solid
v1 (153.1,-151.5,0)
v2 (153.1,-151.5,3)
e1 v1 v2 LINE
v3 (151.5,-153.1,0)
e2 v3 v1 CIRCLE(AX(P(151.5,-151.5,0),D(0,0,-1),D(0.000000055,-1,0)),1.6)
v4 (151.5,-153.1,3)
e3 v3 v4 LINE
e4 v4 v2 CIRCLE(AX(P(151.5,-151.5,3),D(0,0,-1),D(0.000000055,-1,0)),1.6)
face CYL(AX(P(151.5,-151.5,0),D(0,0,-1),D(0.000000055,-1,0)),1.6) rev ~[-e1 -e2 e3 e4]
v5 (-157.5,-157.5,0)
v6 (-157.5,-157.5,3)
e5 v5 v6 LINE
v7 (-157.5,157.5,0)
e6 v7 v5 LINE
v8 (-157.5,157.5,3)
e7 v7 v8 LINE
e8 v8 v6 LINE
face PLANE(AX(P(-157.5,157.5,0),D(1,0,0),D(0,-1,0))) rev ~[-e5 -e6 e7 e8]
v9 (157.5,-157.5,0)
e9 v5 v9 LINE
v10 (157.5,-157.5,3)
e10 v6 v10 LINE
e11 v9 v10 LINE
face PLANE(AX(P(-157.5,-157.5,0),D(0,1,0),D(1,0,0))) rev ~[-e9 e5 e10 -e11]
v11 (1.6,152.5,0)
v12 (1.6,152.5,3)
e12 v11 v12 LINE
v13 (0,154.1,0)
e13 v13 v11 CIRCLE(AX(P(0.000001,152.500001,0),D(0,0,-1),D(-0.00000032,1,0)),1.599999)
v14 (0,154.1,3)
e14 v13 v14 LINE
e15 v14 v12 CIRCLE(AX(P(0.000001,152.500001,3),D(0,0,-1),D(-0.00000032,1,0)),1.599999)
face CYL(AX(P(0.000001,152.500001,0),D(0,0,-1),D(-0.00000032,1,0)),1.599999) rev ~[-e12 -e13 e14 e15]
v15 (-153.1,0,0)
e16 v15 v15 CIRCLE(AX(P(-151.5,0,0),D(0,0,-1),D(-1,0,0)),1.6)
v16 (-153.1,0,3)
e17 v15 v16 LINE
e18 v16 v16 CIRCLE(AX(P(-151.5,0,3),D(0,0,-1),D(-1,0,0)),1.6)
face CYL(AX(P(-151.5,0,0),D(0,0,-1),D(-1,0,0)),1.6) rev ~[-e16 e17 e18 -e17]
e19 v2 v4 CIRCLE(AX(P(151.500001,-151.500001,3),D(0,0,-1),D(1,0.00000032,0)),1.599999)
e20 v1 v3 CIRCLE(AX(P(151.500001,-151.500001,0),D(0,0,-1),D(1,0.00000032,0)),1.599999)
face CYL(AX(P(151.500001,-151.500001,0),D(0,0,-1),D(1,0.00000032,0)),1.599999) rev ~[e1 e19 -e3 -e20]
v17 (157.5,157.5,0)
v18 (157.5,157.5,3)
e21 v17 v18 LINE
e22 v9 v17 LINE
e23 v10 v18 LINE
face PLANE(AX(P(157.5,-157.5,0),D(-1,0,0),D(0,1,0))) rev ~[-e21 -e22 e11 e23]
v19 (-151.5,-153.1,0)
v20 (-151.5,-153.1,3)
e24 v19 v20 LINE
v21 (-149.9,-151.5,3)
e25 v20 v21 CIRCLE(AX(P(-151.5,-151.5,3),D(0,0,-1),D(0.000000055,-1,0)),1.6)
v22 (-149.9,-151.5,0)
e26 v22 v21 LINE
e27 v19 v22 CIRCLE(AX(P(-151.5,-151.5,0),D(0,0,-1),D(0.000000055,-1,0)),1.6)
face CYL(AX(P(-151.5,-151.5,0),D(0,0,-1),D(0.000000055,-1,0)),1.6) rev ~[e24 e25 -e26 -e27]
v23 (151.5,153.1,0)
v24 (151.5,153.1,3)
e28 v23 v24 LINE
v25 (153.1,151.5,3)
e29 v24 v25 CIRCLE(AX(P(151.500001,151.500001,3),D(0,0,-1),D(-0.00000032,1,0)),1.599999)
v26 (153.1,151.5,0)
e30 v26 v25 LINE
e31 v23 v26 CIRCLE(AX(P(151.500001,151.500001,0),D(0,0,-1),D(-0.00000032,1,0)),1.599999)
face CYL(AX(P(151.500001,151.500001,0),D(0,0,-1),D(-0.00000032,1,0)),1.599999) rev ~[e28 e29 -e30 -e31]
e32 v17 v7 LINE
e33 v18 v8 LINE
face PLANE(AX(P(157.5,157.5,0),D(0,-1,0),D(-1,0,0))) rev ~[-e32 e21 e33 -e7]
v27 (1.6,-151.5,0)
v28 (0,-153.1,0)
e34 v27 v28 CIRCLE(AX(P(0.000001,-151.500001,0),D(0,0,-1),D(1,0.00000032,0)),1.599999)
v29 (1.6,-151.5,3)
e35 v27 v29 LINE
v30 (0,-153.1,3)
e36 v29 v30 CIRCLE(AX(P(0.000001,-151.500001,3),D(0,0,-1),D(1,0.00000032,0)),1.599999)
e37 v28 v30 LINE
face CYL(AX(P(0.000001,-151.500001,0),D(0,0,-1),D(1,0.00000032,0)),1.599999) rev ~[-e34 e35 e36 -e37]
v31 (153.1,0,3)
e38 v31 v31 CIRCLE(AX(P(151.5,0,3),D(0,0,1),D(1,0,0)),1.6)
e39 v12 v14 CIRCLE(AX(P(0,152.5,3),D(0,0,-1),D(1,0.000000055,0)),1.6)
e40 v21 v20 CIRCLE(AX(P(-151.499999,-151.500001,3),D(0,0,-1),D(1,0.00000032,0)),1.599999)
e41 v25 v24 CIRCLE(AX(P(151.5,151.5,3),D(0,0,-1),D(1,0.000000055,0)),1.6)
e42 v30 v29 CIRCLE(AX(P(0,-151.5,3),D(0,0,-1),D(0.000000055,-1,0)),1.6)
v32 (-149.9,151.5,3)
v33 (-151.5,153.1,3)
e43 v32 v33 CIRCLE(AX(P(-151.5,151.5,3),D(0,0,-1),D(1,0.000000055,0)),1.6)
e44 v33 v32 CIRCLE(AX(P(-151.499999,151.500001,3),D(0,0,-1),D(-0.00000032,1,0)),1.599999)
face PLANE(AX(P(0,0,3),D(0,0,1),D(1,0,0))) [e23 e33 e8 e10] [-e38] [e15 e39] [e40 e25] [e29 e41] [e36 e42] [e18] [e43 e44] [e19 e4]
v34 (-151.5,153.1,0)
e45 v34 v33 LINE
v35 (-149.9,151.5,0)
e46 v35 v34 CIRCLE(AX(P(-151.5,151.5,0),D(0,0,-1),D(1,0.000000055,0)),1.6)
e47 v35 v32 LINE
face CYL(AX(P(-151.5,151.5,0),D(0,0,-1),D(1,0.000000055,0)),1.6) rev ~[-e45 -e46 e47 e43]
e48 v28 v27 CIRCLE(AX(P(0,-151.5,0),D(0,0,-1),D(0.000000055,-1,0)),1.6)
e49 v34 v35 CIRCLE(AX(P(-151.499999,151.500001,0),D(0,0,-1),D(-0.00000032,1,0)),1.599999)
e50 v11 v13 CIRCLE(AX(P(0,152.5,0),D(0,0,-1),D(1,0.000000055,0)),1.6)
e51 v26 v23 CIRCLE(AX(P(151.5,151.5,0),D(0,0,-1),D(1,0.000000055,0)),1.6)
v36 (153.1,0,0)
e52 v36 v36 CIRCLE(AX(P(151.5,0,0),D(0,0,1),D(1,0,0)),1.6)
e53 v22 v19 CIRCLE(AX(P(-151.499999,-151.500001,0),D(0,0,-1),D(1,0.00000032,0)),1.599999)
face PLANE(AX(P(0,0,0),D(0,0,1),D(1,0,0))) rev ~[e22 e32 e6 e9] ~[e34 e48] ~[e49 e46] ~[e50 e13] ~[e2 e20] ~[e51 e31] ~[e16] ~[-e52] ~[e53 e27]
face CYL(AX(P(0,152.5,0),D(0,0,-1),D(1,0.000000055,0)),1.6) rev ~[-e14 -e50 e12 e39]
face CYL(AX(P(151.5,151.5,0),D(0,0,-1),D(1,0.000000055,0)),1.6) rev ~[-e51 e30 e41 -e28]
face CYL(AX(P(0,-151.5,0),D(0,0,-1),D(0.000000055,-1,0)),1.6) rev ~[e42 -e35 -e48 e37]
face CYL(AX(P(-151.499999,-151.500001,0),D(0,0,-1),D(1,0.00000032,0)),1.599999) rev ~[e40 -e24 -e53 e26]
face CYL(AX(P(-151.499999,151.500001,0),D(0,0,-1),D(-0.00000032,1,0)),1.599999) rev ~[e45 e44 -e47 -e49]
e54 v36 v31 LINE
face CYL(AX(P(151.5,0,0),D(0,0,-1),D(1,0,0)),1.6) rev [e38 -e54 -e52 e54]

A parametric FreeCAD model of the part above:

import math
import FreeCAD as App
import Part
import Sketcher

V = App.Vector


def add_polygon(sketch, points):
    """Adds a closed chain of lines whose ends are joined by coincident constraints."""
    first, n = sketch.GeometryCount, len(points)
    for a, b in zip(points, points[1:] + points[:1]):
        sketch.addGeometry(Part.LineSegment(App.Vector(*a, 0), App.Vector(*b, 0)), False)
    for i in range(n):
        sketch.addConstraint(Sketcher.Constraint("Coincident", first + i, 2, first + (i + 1) % n, 1))

doc = App.newDocument("Part")
body = doc.addObject("PartDesign::Body", "Body")

sketch1 = body.newObject("Sketcher::SketchObject", "Sketch")
sketch1.AttachmentSupport = (doc.getObject("XY_Plane"), [""])
sketch1.MapMode = "FlatFace"
add_polygon(sketch1, [(-157.5, 157.5), (-157.5, -157.5), (157.5, -157.5), (157.5, 157.5)])
sketch1.addGeometry(Part.ArcOfCircle(Part.Circle(V(-151.5, -151.5, 0), V(0, 0, 1), 1.6), math.radians(0), math.radians(270)), False)
sketch1.addGeometry(Part.ArcOfCircle(Part.Circle(V(-151.5, -151.5, 0), V(0, 0, 1), 1.6), math.radians(-90), math.radians(0)), False)
sketch1.addGeometry(Part.Circle(V(-151.5, 0, 0), V(0, 0, 1), 1.6), False)
sketch1.addGeometry(Part.ArcOfCircle(Part.Circle(V(0, -151.5, 0), V(0, 0, 1), 1.6), math.radians(0), math.radians(270)), False)
sketch1.addGeometry(Part.ArcOfCircle(Part.Circle(V(0, -151.5, 0), V(0, 0, 1), 1.6), math.radians(-90), math.radians(0)), False)
sketch1.addGeometry(Part.ArcOfCircle(Part.Circle(V(151.5, -151.5, 0), V(0, 0, 1), 1.6), math.radians(0), math.radians(270)), False)
sketch1.addGeometry(Part.ArcOfCircle(Part.Circle(V(151.5, -151.5, 0), V(0, 0, 1), 1.6), math.radians(-90), math.radians(0)), False)
sketch1.addGeometry(Part.Circle(V(151.5, 0, 0), V(0, 0, 1), 1.6), False)
sketch1.addGeometry(Part.ArcOfCircle(Part.Circle(V(-151.5, 151.5, 0), V(0, 0, 1), 1.6), math.radians(0), math.radians(90)), False)
sketch1.addGeometry(Part.ArcOfCircle(Part.Circle(V(-151.5, 151.5, 0), V(0, 0, 1), 1.6), math.radians(90), math.radians(360)), False)
sketch1.addGeometry(Part.ArcOfCircle(Part.Circle(V(0, 152.5, 0), V(0, 0, 1), 1.6), math.radians(0), math.radians(90)), False)
sketch1.addGeometry(Part.ArcOfCircle(Part.Circle(V(0, 152.5, 0), V(0, 0, 1), 1.6), math.radians(90), math.radians(360)), False)
sketch1.addGeometry(Part.ArcOfCircle(Part.Circle(V(151.5, 151.5, 0), V(0, 0, 1), 1.6), math.radians(0), math.radians(90)), False)
sketch1.addGeometry(Part.ArcOfCircle(Part.Circle(V(151.5, 151.5, 0), V(0, 0, 1), 1.6), math.radians(90), math.radians(360)), False)
sketch1.addConstraint([
    Sketcher.Constraint("Tangent", 4, 1, 5, 2),
    Sketcher.Constraint("Coincident", 5, 1, 4, 2),
    Sketcher.Constraint("Tangent", 7, 1, 8, 2),
    Sketcher.Constraint("Coincident", 8, 1, 7, 2),
    Sketcher.Constraint("Tangent", 9, 1, 10, 2),
    Sketcher.Constraint("Coincident", 10, 1, 9, 2),
    Sketcher.Constraint("Tangent", 12, 1, 13, 2),
    Sketcher.Constraint("Coincident", 13, 1, 12, 2),
    Sketcher.Constraint("Tangent", 14, 1, 15, 2),
    Sketcher.Constraint("Coincident", 15, 1, 14, 2),
    Sketcher.Constraint("Tangent", 16, 1, 17, 2),
    Sketcher.Constraint("Coincident", 17, 1, 16, 2),
    Sketcher.Constraint("Vertical", 0),
    Sketcher.Constraint("Horizontal", 1),
    Sketcher.Constraint("Vertical", 2),
    Sketcher.Constraint("Horizontal", 3),
    Sketcher.Constraint("Equal", 5, 6),
    Sketcher.Constraint("Equal", 6, 7),
    Sketcher.Constraint("Equal", 8, 9),
    Sketcher.Constraint("Equal", 10, 11),
    Sketcher.Constraint("Equal", 11, 12),
    Sketcher.Constraint("Equal", 13, 14),
    Sketcher.Constraint("Equal", 15, 16),
    Sketcher.Constraint("Symmetric", 6, 3, 11, 3, -1, 1),
    Sketcher.Constraint("Symmetric", 9, 3, 12, 3, -1, 1),
    Sketcher.Constraint("Symmetric", 4, 3, 16, 3, -1, 1),
    Sketcher.Constraint("Symmetric", 0, 2, 2, 2, -1, 1),
    Sketcher.Constraint("Symmetric", 4, 3, 9, 3, -2),
    Sketcher.Constraint("PointOnObject", 6, 3, -1),
    Sketcher.Constraint("PointOnObject", 7, 3, -2),
    Sketcher.Constraint("PointOnObject", 14, 3, -2),
    Sketcher.Constraint("PointOnObject", 8, 1, -2),
    Sketcher.Constraint("PointOnObject", 15, 1, -2),
    Sketcher.Constraint("Horizontal", 5, 3, 7, 3),
    Sketcher.Constraint("Horizontal", 10, 3, 4, 1),
    Sketcher.Constraint("Horizontal", 4, 1, 7, 1),
    Sketcher.Constraint("Horizontal", 7, 1, 9, 1),
    Sketcher.Constraint("Horizontal", 17, 3, 12, 1),
    Sketcher.Constraint("Horizontal", 15, 3, 14, 1),
    Sketcher.Constraint("Horizontal", 12, 1, 16, 1),
    Sketcher.Constraint("Vertical", 5, 3, 6, 3),
    Sketcher.Constraint("Vertical", 13, 3, 5, 1),
    Sketcher.Constraint("Vertical", 17, 3, 10, 1),
    Sketcher.Constraint("Vertical", 5, 1, 13, 1),
    Sketcher.Constraint("Vertical", 10, 1, 17, 1),
    Sketcher.Constraint("Equal", 3, 0),
    Sketcher.Constraint("Diameter", 6, 3.2),
    Sketcher.Constraint("DistanceX", 1, 1, 1, 2, 315.0),
    Sketcher.Constraint("DistanceX", 5, 3, 9, 3, 302.999999),
    Sketcher.Constraint("DistanceY", 4, 3, 12, 3, 303.0),
    Sketcher.Constraint("DistanceY", 12, 3, 14, 3, 1.0),
])
pad1 = body.newObject("PartDesign::Pad", "Pad")
pad1.Profile = sketch1
pad1.Length = 3

doc.recompute()
